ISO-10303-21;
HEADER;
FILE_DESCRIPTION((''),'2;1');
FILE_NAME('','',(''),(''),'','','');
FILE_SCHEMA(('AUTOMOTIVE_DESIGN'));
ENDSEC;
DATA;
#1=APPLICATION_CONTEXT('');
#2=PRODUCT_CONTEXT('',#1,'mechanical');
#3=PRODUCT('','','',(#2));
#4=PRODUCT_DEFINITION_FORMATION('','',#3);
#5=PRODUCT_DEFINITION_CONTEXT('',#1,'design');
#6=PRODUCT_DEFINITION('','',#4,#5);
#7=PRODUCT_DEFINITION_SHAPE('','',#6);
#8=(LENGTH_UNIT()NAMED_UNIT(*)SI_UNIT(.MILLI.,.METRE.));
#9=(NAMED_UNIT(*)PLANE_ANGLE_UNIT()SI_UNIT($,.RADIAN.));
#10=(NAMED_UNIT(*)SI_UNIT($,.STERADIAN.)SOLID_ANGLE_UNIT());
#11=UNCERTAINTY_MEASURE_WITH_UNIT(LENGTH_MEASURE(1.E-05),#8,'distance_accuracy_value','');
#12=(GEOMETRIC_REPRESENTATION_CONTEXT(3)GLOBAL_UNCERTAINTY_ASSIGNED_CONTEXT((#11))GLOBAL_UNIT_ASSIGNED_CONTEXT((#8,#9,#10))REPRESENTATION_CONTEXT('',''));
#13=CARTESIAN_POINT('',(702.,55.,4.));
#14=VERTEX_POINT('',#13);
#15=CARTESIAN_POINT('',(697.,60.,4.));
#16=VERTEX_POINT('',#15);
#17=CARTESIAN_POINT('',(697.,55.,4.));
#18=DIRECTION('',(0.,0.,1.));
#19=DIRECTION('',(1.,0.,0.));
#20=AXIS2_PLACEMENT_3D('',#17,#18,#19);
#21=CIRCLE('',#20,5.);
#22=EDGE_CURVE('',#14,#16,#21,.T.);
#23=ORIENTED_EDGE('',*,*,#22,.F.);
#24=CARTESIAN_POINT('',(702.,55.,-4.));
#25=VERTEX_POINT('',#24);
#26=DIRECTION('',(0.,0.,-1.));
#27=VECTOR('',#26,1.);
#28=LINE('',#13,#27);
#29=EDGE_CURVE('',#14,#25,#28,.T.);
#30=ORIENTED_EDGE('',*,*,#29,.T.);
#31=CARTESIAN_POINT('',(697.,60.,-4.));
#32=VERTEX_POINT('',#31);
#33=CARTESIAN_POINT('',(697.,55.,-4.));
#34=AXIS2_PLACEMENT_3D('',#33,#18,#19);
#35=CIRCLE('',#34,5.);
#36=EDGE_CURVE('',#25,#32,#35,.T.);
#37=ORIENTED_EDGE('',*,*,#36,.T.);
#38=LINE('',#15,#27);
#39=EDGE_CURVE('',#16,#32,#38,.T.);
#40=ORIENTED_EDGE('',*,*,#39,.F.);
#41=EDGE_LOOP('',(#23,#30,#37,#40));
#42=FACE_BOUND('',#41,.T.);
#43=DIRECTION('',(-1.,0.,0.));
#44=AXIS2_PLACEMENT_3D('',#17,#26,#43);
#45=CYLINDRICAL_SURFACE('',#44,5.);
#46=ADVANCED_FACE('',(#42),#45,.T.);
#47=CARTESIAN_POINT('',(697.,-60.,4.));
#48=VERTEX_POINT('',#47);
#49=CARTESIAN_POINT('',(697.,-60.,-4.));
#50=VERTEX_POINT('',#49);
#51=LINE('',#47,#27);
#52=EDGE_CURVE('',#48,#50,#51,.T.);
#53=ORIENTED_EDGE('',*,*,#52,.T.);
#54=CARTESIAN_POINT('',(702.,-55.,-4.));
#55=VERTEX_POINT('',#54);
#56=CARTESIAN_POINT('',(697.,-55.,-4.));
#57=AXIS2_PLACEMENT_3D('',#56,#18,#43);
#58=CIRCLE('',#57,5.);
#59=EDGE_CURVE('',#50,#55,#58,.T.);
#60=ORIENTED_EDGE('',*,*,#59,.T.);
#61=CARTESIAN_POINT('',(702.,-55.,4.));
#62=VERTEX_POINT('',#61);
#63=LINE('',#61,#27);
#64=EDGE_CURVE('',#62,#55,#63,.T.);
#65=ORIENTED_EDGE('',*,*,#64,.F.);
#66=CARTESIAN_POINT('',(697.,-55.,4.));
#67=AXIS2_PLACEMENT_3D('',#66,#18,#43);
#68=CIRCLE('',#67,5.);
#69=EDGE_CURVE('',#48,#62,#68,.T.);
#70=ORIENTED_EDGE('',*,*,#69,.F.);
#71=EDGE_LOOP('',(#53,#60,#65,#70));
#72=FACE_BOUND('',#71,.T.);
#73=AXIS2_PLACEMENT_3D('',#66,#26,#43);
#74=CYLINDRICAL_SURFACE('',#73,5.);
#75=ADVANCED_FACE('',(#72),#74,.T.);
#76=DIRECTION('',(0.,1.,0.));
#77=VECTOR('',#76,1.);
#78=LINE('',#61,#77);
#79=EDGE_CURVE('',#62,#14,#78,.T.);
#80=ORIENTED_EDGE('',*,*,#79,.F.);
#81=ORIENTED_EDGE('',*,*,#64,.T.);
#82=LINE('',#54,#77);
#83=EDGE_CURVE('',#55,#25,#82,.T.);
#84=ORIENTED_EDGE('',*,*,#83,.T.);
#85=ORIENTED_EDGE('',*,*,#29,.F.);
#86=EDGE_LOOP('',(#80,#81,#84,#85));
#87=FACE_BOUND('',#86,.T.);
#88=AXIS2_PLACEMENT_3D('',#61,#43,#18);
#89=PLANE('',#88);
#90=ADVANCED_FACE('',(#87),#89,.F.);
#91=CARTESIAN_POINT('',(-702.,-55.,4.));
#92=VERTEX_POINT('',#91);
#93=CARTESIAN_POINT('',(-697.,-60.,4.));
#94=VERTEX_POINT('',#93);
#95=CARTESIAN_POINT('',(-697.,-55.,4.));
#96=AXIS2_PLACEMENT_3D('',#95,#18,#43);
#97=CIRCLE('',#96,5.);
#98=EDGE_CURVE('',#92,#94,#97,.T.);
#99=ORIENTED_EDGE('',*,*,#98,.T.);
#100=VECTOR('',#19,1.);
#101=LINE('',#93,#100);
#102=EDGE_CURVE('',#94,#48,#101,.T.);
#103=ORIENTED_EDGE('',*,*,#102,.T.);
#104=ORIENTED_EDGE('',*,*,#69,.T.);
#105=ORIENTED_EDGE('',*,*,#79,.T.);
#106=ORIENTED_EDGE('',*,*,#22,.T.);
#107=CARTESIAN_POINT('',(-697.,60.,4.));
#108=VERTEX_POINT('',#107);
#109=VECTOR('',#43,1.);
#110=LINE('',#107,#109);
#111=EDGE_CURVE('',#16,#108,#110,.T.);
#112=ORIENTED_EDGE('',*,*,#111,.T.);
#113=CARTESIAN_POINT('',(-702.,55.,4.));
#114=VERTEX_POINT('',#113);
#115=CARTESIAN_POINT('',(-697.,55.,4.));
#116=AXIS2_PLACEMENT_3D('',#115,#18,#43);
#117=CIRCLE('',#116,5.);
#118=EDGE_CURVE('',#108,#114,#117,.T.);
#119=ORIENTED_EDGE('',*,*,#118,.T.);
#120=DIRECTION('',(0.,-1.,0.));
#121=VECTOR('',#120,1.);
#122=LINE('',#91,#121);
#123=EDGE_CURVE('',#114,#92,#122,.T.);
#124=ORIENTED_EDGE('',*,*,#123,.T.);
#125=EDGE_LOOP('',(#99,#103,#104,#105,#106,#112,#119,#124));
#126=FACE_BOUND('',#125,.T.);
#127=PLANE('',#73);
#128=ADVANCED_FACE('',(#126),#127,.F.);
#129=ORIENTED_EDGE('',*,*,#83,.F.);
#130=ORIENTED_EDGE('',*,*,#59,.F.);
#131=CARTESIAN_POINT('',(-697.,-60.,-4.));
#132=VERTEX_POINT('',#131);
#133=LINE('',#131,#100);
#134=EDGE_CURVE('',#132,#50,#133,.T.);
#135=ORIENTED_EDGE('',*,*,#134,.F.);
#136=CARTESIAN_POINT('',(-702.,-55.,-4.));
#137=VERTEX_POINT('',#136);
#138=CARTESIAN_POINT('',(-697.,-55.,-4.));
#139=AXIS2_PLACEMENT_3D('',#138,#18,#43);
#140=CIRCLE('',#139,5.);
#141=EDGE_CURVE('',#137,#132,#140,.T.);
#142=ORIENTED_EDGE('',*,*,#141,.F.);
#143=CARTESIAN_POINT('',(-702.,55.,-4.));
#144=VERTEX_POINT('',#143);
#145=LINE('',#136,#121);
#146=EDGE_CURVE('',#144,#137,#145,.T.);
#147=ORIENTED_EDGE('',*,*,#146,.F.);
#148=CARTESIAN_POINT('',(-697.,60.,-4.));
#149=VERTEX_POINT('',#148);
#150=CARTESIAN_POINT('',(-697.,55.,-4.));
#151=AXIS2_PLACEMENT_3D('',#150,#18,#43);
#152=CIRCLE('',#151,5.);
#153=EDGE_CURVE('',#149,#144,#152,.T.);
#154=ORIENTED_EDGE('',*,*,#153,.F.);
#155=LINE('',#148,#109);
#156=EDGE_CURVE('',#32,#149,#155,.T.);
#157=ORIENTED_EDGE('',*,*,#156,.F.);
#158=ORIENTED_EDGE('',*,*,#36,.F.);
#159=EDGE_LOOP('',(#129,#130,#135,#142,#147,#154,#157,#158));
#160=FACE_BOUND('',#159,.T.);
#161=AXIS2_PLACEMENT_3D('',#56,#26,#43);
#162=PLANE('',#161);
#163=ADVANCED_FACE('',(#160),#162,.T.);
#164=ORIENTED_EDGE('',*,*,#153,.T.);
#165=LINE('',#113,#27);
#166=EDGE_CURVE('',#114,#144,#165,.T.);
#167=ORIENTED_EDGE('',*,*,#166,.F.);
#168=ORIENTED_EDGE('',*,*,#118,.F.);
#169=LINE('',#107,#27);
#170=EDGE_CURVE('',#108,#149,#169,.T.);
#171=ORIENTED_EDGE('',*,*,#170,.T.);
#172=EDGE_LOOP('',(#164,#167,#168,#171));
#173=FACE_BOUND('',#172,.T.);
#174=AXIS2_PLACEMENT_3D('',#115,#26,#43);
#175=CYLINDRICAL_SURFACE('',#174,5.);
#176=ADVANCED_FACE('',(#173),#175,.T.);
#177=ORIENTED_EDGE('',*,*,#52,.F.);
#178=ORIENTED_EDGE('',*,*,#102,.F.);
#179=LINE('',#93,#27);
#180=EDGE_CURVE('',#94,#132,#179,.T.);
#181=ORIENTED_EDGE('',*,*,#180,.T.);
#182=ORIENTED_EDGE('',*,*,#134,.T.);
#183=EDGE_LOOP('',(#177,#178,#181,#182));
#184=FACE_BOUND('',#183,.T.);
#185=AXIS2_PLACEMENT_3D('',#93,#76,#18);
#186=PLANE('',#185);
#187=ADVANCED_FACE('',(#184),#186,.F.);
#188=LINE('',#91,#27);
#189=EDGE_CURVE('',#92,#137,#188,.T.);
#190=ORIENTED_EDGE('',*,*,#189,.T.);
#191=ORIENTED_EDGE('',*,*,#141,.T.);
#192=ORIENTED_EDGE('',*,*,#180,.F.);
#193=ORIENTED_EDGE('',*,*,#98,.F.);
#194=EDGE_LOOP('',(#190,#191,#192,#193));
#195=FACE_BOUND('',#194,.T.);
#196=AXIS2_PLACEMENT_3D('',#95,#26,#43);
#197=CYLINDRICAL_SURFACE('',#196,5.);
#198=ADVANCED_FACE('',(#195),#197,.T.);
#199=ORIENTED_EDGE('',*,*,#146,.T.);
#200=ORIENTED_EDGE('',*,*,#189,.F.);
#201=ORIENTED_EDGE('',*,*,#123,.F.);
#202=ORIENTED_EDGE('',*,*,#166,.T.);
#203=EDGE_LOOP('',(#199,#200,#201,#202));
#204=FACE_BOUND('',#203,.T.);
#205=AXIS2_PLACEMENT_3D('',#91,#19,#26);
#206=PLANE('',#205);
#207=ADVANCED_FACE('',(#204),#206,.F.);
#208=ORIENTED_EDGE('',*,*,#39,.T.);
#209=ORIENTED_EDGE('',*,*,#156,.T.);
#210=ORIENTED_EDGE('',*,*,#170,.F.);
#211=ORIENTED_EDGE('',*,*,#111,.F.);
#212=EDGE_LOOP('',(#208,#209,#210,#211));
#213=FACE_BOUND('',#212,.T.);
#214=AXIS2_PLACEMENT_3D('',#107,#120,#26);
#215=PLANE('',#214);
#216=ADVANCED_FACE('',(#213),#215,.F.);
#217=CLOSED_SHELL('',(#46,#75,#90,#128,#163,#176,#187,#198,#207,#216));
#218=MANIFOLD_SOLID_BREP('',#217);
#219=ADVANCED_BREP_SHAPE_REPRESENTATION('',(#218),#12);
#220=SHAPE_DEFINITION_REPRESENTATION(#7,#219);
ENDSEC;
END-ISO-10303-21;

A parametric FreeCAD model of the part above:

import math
import FreeCAD as App
import Part
import Sketcher

doc = App.newDocument("Part")
params = doc.addObject("Spreadsheet::Sheet", "Params")
for row, (alias, value) in enumerate([
    ("sketch1_radius", "5 mm"),
    ("sketch1_width", "1394 mm"),
    ("sketch1_height", "110 mm"),
    ("pad1_length", "8 mm"),
], start=1):
    params.set(f"A{row}", alias)
    params.set(f"B{row}", "=" + value)
    params.setAlias(f"B{row}", alias)

body = doc.addObject("PartDesign::Body", "Body")

# Sketch on XY plane
sketch1 = body.newObject("Sketcher::SketchObject", "Sketch")
sketch1.AttachmentSupport = (doc.getObject("XY_Plane"), [""])
sketch1.MapMode = "FlatFace"
sketch1.addGeometry([
    Part.LineSegment(App.Vector(-697, -60, 0), App.Vector(697, -60, 0)),  # 0
    Part.ArcOfCircle(Part.Circle(App.Vector(697, -55, 0), App.Vector(0, 0, 1), 5), math.radians(-90), math.radians(0)),  # 1
    Part.LineSegment(App.Vector(702, -55, 0), App.Vector(702, 55, 0)),  # 2
    Part.ArcOfCircle(Part.Circle(App.Vector(697, 55, 0), App.Vector(0, 0, 1), 5), math.radians(0), math.radians(90)),  # 3
    Part.LineSegment(App.Vector(697, 60, 0), App.Vector(-697, 60, 0)),  # 4
    Part.ArcOfCircle(Part.Circle(App.Vector(-697, 55, 0), App.Vector(0, 0, 1), 5), math.radians(90), math.radians(180)),  # 5
    Part.LineSegment(App.Vector(-702, 55, 0), App.Vector(-702, -55, 0)),  # 6
    Part.ArcOfCircle(Part.Circle(App.Vector(-697, -55, 0), App.Vector(0, 0, 1), 5), math.radians(180), math.radians(270)),  # 7
], False)
sketch1.addConstraint([
    Sketcher.Constraint("Tangent", 0, 2, 1, 1),
    Sketcher.Constraint("Tangent", 1, 2, 2, 1),
    Sketcher.Constraint("Tangent", 2, 2, 3, 1),
    Sketcher.Constraint("Tangent", 3, 2, 4, 1),
    Sketcher.Constraint("Tangent", 4, 2, 5, 1),
    Sketcher.Constraint("Tangent", 5, 2, 6, 1),
    Sketcher.Constraint("Tangent", 6, 2, 7, 1),
    Sketcher.Constraint("Tangent", 7, 2, 0, 1),
    Sketcher.Constraint("Horizontal", 0),
    Sketcher.Constraint("Vertical", 2),
    Sketcher.Constraint("Horizontal", 4),
    Sketcher.Constraint("Vertical", 6),
    Sketcher.Constraint("Equal", 1, 3),
    Sketcher.Constraint("Equal", 3, 5),
    Sketcher.Constraint("Equal", 5, 7),
    Sketcher.Constraint("Symmetric", 1, 3, 5, 3, -1, 1),
    Sketcher.Constraint("Radius", 1, 5.0),
    Sketcher.Constraint("DistanceX", 0, 1, 0, 2, 1394.0),
    Sketcher.Constraint("DistanceY", 2, 1, 2, 2, 110.0),
])
sketch1.setExpression("Constraints[16]", "Params.sketch1_radius")
sketch1.setExpression("Constraints[17]", "Params.sketch1_width")
sketch1.setExpression("Constraints[18]", "Params.sketch1_height")
pad1 = body.newObject("PartDesign::Pad", "Pad")
pad1.Profile = sketch1
pad1.setExpression("Length", "Params.pad1_length")
pad1.Midplane = True

doc.recompute()
